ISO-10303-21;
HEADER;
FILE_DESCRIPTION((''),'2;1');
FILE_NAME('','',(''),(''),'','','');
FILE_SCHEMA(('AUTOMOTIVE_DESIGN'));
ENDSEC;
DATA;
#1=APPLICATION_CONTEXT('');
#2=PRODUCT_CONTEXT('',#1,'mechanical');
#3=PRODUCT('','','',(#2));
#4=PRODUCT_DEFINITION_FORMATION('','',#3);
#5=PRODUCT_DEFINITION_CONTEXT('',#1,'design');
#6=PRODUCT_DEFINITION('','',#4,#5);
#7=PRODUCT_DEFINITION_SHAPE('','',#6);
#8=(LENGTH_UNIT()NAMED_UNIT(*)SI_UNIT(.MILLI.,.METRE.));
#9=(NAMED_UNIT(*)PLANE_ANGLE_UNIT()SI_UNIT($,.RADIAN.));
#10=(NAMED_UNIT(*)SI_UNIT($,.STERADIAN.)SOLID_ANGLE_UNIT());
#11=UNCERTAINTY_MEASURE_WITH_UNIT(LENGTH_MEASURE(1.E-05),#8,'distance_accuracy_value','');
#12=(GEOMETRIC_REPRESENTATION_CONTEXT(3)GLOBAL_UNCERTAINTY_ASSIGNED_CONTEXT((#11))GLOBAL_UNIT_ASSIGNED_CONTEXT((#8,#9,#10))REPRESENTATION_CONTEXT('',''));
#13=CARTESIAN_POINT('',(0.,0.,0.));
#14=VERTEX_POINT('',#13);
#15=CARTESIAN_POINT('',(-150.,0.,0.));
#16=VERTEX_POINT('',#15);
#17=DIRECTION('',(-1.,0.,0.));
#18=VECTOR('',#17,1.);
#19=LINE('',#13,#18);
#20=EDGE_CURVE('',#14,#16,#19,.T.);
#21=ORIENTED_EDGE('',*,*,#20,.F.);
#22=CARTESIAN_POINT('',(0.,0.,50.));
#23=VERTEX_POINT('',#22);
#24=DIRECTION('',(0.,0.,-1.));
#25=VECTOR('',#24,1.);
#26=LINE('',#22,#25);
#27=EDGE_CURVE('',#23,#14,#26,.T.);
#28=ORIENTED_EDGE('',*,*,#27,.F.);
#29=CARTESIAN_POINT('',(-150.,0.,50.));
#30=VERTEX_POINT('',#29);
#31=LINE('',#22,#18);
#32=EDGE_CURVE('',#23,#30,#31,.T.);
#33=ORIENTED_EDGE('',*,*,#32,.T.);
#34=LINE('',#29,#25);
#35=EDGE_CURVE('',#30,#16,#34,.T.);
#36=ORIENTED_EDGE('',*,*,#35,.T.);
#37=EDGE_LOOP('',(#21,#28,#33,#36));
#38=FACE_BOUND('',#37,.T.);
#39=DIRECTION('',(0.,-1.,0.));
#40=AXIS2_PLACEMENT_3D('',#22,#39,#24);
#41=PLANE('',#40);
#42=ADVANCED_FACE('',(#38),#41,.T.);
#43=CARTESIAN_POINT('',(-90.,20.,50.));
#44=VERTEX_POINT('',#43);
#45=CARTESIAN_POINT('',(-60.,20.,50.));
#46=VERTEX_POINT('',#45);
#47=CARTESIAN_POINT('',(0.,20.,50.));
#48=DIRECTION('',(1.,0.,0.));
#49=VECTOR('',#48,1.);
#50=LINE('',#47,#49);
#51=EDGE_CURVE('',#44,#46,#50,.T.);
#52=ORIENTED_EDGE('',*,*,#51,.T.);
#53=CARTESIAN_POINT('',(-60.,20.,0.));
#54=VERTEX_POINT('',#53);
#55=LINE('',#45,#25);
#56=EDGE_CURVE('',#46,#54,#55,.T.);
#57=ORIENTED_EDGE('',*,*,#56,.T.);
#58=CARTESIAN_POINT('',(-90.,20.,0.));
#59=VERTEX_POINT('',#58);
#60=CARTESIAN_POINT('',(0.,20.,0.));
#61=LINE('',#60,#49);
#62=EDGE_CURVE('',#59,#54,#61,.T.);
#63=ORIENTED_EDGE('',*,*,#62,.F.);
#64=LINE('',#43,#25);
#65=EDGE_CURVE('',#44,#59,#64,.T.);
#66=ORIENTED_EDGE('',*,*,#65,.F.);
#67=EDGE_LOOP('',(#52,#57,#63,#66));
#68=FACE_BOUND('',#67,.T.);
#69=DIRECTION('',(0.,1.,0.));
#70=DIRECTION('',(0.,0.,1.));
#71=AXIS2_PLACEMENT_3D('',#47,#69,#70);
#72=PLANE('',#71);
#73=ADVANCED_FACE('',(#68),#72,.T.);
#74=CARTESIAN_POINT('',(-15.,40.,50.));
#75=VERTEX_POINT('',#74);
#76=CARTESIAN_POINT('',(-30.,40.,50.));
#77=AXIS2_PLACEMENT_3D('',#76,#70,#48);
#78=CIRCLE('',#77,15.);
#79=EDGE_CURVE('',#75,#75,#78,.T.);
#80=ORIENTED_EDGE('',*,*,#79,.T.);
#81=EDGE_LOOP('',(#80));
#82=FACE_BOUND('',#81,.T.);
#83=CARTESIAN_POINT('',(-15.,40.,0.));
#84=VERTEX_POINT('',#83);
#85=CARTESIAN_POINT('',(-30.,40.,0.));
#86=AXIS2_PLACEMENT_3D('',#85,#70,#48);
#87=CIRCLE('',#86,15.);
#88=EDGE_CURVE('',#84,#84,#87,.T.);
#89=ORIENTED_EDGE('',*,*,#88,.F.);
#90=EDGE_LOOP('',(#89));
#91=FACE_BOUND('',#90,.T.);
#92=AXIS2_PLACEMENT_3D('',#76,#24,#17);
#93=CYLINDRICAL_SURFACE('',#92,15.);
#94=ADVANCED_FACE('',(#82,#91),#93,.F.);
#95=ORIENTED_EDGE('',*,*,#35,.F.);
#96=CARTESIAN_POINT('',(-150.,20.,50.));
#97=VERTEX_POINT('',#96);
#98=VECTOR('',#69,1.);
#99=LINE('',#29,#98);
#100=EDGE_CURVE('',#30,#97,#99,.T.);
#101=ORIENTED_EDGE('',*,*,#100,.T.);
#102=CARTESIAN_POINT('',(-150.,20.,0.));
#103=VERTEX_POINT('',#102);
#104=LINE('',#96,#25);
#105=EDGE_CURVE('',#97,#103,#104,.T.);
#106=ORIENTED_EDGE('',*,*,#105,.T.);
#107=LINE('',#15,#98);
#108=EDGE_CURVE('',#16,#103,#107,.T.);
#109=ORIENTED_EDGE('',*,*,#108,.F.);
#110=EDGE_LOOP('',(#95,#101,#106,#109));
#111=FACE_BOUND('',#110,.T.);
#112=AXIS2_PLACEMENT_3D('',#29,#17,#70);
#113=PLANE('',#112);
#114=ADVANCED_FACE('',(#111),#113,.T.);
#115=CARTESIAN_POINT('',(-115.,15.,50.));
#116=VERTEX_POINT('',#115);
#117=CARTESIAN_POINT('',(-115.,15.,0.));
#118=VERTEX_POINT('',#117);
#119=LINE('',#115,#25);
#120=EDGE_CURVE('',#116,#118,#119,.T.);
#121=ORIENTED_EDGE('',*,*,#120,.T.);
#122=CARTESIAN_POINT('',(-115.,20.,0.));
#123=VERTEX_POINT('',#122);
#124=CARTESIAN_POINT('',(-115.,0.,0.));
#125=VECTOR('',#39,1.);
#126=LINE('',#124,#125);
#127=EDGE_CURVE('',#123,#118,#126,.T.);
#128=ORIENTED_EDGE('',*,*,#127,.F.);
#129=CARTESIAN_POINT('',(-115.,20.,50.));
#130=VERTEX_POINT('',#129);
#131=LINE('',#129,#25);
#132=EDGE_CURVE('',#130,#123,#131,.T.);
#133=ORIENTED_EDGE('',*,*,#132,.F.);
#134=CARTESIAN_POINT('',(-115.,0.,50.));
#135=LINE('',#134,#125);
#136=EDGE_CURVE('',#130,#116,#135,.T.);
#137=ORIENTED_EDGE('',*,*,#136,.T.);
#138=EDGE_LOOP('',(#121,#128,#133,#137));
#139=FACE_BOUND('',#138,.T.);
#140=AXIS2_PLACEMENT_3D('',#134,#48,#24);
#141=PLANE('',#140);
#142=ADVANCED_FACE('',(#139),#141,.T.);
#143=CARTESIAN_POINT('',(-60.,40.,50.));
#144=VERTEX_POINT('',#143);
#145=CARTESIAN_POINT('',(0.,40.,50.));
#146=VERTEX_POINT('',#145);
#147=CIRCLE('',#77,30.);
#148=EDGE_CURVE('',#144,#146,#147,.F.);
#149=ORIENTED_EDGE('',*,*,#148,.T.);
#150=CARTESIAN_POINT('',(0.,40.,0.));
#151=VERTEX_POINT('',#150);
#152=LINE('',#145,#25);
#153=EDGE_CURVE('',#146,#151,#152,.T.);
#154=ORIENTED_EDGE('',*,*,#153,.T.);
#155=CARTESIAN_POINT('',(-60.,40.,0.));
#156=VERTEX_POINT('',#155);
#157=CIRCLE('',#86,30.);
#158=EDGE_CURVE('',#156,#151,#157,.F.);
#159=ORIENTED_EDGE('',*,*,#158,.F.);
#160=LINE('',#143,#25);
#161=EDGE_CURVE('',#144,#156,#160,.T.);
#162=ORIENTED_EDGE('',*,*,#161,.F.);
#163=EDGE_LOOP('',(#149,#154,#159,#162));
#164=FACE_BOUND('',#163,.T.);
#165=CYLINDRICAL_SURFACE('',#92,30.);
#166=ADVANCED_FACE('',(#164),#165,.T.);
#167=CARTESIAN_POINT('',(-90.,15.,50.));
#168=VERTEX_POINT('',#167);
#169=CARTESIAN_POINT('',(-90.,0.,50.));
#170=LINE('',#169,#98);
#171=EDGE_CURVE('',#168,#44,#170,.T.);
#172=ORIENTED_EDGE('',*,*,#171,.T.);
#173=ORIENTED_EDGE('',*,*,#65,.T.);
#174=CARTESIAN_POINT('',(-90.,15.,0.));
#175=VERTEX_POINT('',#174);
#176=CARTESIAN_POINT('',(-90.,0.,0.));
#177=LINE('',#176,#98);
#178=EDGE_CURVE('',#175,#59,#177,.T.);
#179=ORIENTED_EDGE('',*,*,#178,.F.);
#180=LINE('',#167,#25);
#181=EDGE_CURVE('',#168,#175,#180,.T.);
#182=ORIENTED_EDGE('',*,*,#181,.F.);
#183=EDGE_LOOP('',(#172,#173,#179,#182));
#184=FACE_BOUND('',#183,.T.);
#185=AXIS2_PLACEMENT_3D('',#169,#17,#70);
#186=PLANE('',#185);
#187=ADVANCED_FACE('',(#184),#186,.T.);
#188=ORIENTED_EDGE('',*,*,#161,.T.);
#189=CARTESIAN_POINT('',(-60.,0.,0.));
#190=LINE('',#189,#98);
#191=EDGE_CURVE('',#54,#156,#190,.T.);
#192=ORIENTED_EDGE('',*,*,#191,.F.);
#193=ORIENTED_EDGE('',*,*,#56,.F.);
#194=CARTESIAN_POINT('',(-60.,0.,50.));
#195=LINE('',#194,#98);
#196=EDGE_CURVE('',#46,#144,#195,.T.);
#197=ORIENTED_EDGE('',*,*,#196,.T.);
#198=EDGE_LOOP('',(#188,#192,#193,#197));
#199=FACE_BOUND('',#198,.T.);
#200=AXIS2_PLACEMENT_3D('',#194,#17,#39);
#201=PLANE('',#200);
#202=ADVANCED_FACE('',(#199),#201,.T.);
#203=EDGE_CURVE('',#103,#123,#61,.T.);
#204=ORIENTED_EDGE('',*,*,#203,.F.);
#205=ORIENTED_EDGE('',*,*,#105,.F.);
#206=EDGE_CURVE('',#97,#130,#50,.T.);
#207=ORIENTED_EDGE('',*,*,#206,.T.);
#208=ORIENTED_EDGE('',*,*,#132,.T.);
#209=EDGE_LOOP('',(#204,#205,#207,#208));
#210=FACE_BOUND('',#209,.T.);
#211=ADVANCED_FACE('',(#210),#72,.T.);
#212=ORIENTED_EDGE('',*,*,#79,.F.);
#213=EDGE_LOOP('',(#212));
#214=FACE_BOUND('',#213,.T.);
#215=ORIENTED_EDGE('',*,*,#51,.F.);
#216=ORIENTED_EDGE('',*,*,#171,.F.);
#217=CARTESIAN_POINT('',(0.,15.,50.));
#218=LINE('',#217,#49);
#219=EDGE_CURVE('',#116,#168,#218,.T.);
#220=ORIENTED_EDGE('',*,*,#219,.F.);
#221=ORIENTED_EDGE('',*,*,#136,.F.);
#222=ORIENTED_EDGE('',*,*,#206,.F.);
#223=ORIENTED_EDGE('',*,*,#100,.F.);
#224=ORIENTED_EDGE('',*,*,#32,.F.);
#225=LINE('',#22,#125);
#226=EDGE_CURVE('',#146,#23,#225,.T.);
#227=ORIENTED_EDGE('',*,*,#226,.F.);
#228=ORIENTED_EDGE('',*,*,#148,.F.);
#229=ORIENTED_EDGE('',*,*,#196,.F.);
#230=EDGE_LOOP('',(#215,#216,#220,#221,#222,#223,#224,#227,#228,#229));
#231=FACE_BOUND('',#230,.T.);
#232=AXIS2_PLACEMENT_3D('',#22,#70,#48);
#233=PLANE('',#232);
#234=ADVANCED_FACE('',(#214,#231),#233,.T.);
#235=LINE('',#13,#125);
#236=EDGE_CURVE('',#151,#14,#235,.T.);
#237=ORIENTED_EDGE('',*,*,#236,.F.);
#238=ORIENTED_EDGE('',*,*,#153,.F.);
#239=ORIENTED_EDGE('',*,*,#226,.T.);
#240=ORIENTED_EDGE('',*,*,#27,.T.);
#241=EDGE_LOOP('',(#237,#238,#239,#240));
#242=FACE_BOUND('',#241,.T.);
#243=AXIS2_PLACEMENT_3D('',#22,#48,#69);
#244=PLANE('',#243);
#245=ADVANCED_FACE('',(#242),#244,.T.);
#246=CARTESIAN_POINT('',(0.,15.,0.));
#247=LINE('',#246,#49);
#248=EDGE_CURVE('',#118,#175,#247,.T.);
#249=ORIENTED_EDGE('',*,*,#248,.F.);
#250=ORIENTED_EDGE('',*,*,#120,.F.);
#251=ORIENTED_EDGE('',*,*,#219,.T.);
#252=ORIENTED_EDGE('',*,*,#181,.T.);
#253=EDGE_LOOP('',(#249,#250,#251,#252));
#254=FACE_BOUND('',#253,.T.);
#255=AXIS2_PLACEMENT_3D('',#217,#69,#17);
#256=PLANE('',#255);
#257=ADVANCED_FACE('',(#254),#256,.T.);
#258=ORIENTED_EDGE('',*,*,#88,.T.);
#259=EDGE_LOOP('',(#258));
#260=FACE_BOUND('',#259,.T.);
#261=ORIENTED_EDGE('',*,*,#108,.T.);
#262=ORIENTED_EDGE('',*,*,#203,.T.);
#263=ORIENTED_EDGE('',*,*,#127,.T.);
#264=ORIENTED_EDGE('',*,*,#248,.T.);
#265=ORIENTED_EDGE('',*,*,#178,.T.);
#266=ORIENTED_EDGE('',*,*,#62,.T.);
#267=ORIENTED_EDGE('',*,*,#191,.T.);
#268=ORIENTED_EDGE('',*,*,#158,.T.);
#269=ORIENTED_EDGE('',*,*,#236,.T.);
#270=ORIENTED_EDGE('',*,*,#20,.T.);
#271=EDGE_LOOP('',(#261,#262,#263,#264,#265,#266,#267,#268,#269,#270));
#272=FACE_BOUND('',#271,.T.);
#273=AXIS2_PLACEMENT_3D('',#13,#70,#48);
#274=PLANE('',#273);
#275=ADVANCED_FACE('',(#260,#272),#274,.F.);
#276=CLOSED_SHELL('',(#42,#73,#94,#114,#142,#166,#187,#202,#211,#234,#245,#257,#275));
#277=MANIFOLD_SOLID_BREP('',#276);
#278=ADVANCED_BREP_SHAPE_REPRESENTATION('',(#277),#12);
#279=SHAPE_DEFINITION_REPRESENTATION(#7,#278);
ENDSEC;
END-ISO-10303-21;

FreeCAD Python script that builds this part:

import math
import FreeCAD as App
import Part
import Sketcher
from FreeCAD import Vector
Q = App.Units.Quantity

doc = App.newDocument("Part")
body = doc.addObject("PartDesign::Body", "Body")

sketch1 = body.newObject("Sketcher::SketchObject", "Sketch")
sketch1.AttachmentSupport = (doc.getObject("XY_Plane"), [""])
sketch1.MapMode = "FlatFace"
sketch1.addGeometry(Part.ArcOfCircle(Part.Circle(Vector(-30, 40, 0), Vector(0, 0, 1), 30), math.radians(0), math.radians(180)), False)
sketch1.addGeometry(Part.LineSegment(Vector(-60, 40, 0), Vector(-60, 20, 0)), False)
sketch1.addGeometry(Part.LineSegment(Vector(-60, 20, 0), Vector(-90, 20, 0)), False)
sketch1.addGeometry(Part.LineSegment(Vector(-90, 20, 0), Vector(-90, 15, 0)), False)
sketch1.addGeometry(Part.LineSegment(Vector(-90, 15, 0), Vector(-115, 15, 0)), False)
sketch1.addGeometry(Part.LineSegment(Vector(-115, 15, 0), Vector(-115, 20, 0)), False)
sketch1.addGeometry(Part.LineSegment(Vector(-115, 20, 0), Vector(-150, 20, 0)), False)
sketch1.addGeometry(Part.LineSegment(Vector(-150, 20, 0), Vector(-150, 0, 0)), False)
sketch1.addGeometry(Part.LineSegment(Vector(-150, 0, 0), Vector(0, 0, 0)), False)
sketch1.addGeometry(Part.LineSegment(Vector(0, 0, 0), Vector(0, 40, 0)), False)
sketch1.addGeometry(Part.Circle(Vector(-30, 40, 0), Vector(0, 0, 1), 15), False)
sketch1.addConstraint(Sketcher.Constraint("Tangent", 0, 2, 1, 1))
sketch1.addConstraint(Sketcher.Constraint("Coincident", 1, 2, 2, 1))
sketch1.addConstraint(Sketcher.Constraint("Coincident", 2, 2, 3, 1))
sketch1.addConstraint(Sketcher.Constraint("Coincident", 3, 2, 4, 1))
sketch1.addConstraint(Sketcher.Constraint("Coincident", 4, 2, 5, 1))
sketch1.addConstraint(Sketcher.Constraint("Coincident", 5, 2, 6, 1))
sketch1.addConstraint(Sketcher.Constraint("Coincident", 6, 2, 7, 1))
sketch1.addConstraint(Sketcher.Constraint("Coincident", 7, 2, 8, 1))
sketch1.addConstraint(Sketcher.Constraint("Coincident", 8, 2, 9, 1))
sketch1.addConstraint(Sketcher.Constraint("Tangent", 9, 2, 0, 1))
sketch1.addConstraint(Sketcher.Constraint("Vertical", 1))
sketch1.addConstraint(Sketcher.Constraint("Horizontal", 2))
sketch1.addConstraint(Sketcher.Constraint("Vertical", 3))
sketch1.addConstraint(Sketcher.Constraint("Horizontal", 4))
sketch1.addConstraint(Sketcher.Constraint("Vertical", 5))
sketch1.addConstraint(Sketcher.Constraint("Horizontal", 6))
sketch1.addConstraint(Sketcher.Constraint("Vertical", 7))
sketch1.addConstraint(Sketcher.Constraint("Horizontal", 8))
sketch1.addConstraint(Sketcher.Constraint("Vertical", 9))
sketch1.addConstraint(Sketcher.Constraint("Coincident", 8, 2, -1, 1))
sketch1.addConstraint(Sketcher.Constraint("Coincident", 10, 3, 0, 3))
sketch1.addConstraint(Sketcher.Constraint("Horizontal", 2, 2, 5, 2))
sketch1.addConstraint(Sketcher.Constraint("Equal", 1, 7))
sketch1.addConstraint(Sketcher.Constraint("Diameter", 10, Q("30 mm")))
sketch1.addConstraint(Sketcher.Constraint("Radius", 0, Q("30 mm")))
sketch1.addConstraint(Sketcher.Constraint("DistanceX", 2, 2, 2, 1, Q("30 mm")))
sketch1.addConstraint(Sketcher.Constraint("DistanceX", 4, 2, 4, 1, Q("25 mm")))
sketch1.addConstraint(Sketcher.Constraint("DistanceX", 6, 2, 6, 1, Q("35 mm")))
sketch1.addConstraint(Sketcher.Constraint("DistanceY", 1, 2, 1, 1, Q("20 mm")))
sketch1.addConstraint(Sketcher.Constraint("DistanceY", 3, 2, 3, 1, Q("5 mm")))
pad1 = body.newObject("PartDesign::Pad", "Pad")
pad1.Profile = sketch1
pad1.Length = 50

doc.recompute()
